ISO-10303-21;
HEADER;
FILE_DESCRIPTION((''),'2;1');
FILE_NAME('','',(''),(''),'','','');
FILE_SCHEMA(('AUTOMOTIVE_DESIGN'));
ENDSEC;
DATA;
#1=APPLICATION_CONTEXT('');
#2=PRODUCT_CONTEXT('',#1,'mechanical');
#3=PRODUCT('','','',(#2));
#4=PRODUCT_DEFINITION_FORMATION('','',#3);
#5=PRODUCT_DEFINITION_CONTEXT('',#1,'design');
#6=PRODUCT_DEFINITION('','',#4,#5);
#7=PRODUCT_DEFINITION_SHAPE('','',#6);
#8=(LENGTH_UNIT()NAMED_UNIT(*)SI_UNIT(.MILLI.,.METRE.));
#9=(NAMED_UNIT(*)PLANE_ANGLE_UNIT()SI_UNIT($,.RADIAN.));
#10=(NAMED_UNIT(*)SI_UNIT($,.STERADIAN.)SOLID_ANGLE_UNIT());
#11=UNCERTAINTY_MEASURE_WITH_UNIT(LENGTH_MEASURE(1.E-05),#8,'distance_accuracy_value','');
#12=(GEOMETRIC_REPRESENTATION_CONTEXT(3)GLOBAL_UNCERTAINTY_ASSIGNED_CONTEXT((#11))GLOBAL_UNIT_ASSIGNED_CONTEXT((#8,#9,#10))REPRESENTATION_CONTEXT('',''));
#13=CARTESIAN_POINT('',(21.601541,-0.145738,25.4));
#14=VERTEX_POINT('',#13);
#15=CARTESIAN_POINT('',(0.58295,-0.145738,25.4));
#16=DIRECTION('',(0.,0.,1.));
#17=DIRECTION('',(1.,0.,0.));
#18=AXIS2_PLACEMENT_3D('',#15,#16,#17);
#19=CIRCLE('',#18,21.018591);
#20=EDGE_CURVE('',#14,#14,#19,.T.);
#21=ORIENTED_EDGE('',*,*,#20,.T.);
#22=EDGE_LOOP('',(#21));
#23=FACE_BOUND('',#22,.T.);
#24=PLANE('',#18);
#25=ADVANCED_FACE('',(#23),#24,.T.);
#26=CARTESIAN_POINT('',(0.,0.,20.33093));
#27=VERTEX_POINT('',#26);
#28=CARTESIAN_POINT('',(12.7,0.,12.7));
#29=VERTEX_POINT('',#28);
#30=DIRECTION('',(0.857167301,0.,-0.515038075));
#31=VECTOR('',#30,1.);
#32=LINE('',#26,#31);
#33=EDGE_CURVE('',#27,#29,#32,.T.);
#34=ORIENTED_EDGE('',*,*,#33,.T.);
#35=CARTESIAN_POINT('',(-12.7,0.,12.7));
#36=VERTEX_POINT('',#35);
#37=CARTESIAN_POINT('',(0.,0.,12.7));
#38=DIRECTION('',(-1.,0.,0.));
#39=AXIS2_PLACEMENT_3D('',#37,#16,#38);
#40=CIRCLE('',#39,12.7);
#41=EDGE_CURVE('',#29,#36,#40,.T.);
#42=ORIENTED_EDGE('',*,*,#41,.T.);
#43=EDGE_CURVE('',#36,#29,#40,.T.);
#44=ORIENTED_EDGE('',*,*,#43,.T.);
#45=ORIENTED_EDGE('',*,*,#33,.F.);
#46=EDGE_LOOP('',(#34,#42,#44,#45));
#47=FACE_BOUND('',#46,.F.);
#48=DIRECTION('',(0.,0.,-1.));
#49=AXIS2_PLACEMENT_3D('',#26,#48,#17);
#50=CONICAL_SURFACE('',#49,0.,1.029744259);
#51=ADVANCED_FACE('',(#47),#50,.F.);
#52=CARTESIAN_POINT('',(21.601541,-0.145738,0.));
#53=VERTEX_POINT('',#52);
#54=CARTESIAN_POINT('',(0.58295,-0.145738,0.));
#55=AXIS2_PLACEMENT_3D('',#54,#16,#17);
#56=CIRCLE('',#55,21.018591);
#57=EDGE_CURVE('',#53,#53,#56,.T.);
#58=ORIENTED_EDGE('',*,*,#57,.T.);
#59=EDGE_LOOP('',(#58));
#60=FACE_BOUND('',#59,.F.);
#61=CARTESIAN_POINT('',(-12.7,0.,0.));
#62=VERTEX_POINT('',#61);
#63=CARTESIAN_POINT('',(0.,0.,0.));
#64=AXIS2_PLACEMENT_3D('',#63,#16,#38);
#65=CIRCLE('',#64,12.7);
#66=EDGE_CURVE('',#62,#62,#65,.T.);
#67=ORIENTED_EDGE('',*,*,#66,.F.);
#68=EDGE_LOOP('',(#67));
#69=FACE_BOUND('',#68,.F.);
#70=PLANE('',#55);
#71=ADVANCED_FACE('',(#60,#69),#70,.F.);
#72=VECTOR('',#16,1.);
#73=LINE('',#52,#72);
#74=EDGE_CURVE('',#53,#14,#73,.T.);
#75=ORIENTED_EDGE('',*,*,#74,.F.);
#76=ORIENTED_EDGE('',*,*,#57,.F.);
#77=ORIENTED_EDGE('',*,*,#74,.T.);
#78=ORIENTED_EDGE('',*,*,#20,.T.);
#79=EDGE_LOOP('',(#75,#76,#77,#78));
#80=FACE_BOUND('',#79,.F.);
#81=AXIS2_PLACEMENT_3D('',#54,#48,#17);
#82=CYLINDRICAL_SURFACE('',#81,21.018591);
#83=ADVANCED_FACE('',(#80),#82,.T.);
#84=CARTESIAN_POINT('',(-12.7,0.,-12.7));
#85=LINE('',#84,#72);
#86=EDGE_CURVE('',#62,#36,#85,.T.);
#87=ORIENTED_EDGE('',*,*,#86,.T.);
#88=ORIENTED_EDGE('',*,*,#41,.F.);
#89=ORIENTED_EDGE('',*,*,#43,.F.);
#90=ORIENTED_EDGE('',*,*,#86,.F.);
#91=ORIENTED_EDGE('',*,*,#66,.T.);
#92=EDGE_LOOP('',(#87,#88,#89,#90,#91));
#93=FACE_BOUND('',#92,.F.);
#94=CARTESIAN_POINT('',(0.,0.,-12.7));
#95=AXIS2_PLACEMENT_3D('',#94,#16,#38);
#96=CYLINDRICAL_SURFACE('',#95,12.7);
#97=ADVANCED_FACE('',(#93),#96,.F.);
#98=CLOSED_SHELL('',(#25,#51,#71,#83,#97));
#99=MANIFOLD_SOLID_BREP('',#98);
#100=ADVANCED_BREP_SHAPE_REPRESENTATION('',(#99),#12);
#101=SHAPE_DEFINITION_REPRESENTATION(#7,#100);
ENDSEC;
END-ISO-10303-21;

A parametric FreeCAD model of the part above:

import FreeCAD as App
import Part
import Sketcher
Q = App.Units.Quantity

doc = App.newDocument("Part")
body = doc.addObject("PartDesign::Body", "Body")

sketch1 = body.newObject("Sketcher::SketchObject", "Sketch")
sketch1.AttachmentSupport = (doc.getObject("XY_Plane"), [""])
sketch1.MapMode = "FlatFace"
sketch1.addGeometry(Part.Circle(App.Vector(1, 0, 0), App.Vector(0, 0, 1), 21), False)
sketch1.addConstraint([
    Sketcher.Constraint("Diameter", 0, Q("42.037182 mm")),
    Sketcher.Constraint("DistanceX", -1, 1, 0, 3, Q("0.58295 mm")),
    Sketcher.Constraint("DistanceY", 0, 3, -1, 1, Q("0.145738 mm")),
])
pad1 = body.newObject("PartDesign::Pad", "Pad")
pad1.Profile = sketch1
pad1.Length = Q("1 in")

sketch2 = body.newObject("Sketcher::SketchObject", "Sketch001")
sketch2.AttachmentSupport = (doc.getObject("XY_Plane"), [""])
sketch2.MapMode = "FlatFace"
sketch2.addGeometry(Part.Circle(App.Vector(0, 0, 0), App.Vector(0, 0, 1), 13), False)
sketch2.addConstraint([
    Sketcher.Constraint("Coincident", 0, 3, -1, 1),
    Sketcher.Constraint("Diameter", 0, Q("1 in")),
])
doc.recompute()
hole = body.newObject("PartDesign::Hole", "Hole")
hole.Profile = sketch2
hole.ThreadType = "None"
hole.Diameter = Q("1 in")
hole.DepthType = "Dimension"
hole.Depth = Q("0.5 in")
hole.DrillPoint = "Angled"
hole.DrillPointAngle = 118
hole.Reversed = True

doc.recompute()
